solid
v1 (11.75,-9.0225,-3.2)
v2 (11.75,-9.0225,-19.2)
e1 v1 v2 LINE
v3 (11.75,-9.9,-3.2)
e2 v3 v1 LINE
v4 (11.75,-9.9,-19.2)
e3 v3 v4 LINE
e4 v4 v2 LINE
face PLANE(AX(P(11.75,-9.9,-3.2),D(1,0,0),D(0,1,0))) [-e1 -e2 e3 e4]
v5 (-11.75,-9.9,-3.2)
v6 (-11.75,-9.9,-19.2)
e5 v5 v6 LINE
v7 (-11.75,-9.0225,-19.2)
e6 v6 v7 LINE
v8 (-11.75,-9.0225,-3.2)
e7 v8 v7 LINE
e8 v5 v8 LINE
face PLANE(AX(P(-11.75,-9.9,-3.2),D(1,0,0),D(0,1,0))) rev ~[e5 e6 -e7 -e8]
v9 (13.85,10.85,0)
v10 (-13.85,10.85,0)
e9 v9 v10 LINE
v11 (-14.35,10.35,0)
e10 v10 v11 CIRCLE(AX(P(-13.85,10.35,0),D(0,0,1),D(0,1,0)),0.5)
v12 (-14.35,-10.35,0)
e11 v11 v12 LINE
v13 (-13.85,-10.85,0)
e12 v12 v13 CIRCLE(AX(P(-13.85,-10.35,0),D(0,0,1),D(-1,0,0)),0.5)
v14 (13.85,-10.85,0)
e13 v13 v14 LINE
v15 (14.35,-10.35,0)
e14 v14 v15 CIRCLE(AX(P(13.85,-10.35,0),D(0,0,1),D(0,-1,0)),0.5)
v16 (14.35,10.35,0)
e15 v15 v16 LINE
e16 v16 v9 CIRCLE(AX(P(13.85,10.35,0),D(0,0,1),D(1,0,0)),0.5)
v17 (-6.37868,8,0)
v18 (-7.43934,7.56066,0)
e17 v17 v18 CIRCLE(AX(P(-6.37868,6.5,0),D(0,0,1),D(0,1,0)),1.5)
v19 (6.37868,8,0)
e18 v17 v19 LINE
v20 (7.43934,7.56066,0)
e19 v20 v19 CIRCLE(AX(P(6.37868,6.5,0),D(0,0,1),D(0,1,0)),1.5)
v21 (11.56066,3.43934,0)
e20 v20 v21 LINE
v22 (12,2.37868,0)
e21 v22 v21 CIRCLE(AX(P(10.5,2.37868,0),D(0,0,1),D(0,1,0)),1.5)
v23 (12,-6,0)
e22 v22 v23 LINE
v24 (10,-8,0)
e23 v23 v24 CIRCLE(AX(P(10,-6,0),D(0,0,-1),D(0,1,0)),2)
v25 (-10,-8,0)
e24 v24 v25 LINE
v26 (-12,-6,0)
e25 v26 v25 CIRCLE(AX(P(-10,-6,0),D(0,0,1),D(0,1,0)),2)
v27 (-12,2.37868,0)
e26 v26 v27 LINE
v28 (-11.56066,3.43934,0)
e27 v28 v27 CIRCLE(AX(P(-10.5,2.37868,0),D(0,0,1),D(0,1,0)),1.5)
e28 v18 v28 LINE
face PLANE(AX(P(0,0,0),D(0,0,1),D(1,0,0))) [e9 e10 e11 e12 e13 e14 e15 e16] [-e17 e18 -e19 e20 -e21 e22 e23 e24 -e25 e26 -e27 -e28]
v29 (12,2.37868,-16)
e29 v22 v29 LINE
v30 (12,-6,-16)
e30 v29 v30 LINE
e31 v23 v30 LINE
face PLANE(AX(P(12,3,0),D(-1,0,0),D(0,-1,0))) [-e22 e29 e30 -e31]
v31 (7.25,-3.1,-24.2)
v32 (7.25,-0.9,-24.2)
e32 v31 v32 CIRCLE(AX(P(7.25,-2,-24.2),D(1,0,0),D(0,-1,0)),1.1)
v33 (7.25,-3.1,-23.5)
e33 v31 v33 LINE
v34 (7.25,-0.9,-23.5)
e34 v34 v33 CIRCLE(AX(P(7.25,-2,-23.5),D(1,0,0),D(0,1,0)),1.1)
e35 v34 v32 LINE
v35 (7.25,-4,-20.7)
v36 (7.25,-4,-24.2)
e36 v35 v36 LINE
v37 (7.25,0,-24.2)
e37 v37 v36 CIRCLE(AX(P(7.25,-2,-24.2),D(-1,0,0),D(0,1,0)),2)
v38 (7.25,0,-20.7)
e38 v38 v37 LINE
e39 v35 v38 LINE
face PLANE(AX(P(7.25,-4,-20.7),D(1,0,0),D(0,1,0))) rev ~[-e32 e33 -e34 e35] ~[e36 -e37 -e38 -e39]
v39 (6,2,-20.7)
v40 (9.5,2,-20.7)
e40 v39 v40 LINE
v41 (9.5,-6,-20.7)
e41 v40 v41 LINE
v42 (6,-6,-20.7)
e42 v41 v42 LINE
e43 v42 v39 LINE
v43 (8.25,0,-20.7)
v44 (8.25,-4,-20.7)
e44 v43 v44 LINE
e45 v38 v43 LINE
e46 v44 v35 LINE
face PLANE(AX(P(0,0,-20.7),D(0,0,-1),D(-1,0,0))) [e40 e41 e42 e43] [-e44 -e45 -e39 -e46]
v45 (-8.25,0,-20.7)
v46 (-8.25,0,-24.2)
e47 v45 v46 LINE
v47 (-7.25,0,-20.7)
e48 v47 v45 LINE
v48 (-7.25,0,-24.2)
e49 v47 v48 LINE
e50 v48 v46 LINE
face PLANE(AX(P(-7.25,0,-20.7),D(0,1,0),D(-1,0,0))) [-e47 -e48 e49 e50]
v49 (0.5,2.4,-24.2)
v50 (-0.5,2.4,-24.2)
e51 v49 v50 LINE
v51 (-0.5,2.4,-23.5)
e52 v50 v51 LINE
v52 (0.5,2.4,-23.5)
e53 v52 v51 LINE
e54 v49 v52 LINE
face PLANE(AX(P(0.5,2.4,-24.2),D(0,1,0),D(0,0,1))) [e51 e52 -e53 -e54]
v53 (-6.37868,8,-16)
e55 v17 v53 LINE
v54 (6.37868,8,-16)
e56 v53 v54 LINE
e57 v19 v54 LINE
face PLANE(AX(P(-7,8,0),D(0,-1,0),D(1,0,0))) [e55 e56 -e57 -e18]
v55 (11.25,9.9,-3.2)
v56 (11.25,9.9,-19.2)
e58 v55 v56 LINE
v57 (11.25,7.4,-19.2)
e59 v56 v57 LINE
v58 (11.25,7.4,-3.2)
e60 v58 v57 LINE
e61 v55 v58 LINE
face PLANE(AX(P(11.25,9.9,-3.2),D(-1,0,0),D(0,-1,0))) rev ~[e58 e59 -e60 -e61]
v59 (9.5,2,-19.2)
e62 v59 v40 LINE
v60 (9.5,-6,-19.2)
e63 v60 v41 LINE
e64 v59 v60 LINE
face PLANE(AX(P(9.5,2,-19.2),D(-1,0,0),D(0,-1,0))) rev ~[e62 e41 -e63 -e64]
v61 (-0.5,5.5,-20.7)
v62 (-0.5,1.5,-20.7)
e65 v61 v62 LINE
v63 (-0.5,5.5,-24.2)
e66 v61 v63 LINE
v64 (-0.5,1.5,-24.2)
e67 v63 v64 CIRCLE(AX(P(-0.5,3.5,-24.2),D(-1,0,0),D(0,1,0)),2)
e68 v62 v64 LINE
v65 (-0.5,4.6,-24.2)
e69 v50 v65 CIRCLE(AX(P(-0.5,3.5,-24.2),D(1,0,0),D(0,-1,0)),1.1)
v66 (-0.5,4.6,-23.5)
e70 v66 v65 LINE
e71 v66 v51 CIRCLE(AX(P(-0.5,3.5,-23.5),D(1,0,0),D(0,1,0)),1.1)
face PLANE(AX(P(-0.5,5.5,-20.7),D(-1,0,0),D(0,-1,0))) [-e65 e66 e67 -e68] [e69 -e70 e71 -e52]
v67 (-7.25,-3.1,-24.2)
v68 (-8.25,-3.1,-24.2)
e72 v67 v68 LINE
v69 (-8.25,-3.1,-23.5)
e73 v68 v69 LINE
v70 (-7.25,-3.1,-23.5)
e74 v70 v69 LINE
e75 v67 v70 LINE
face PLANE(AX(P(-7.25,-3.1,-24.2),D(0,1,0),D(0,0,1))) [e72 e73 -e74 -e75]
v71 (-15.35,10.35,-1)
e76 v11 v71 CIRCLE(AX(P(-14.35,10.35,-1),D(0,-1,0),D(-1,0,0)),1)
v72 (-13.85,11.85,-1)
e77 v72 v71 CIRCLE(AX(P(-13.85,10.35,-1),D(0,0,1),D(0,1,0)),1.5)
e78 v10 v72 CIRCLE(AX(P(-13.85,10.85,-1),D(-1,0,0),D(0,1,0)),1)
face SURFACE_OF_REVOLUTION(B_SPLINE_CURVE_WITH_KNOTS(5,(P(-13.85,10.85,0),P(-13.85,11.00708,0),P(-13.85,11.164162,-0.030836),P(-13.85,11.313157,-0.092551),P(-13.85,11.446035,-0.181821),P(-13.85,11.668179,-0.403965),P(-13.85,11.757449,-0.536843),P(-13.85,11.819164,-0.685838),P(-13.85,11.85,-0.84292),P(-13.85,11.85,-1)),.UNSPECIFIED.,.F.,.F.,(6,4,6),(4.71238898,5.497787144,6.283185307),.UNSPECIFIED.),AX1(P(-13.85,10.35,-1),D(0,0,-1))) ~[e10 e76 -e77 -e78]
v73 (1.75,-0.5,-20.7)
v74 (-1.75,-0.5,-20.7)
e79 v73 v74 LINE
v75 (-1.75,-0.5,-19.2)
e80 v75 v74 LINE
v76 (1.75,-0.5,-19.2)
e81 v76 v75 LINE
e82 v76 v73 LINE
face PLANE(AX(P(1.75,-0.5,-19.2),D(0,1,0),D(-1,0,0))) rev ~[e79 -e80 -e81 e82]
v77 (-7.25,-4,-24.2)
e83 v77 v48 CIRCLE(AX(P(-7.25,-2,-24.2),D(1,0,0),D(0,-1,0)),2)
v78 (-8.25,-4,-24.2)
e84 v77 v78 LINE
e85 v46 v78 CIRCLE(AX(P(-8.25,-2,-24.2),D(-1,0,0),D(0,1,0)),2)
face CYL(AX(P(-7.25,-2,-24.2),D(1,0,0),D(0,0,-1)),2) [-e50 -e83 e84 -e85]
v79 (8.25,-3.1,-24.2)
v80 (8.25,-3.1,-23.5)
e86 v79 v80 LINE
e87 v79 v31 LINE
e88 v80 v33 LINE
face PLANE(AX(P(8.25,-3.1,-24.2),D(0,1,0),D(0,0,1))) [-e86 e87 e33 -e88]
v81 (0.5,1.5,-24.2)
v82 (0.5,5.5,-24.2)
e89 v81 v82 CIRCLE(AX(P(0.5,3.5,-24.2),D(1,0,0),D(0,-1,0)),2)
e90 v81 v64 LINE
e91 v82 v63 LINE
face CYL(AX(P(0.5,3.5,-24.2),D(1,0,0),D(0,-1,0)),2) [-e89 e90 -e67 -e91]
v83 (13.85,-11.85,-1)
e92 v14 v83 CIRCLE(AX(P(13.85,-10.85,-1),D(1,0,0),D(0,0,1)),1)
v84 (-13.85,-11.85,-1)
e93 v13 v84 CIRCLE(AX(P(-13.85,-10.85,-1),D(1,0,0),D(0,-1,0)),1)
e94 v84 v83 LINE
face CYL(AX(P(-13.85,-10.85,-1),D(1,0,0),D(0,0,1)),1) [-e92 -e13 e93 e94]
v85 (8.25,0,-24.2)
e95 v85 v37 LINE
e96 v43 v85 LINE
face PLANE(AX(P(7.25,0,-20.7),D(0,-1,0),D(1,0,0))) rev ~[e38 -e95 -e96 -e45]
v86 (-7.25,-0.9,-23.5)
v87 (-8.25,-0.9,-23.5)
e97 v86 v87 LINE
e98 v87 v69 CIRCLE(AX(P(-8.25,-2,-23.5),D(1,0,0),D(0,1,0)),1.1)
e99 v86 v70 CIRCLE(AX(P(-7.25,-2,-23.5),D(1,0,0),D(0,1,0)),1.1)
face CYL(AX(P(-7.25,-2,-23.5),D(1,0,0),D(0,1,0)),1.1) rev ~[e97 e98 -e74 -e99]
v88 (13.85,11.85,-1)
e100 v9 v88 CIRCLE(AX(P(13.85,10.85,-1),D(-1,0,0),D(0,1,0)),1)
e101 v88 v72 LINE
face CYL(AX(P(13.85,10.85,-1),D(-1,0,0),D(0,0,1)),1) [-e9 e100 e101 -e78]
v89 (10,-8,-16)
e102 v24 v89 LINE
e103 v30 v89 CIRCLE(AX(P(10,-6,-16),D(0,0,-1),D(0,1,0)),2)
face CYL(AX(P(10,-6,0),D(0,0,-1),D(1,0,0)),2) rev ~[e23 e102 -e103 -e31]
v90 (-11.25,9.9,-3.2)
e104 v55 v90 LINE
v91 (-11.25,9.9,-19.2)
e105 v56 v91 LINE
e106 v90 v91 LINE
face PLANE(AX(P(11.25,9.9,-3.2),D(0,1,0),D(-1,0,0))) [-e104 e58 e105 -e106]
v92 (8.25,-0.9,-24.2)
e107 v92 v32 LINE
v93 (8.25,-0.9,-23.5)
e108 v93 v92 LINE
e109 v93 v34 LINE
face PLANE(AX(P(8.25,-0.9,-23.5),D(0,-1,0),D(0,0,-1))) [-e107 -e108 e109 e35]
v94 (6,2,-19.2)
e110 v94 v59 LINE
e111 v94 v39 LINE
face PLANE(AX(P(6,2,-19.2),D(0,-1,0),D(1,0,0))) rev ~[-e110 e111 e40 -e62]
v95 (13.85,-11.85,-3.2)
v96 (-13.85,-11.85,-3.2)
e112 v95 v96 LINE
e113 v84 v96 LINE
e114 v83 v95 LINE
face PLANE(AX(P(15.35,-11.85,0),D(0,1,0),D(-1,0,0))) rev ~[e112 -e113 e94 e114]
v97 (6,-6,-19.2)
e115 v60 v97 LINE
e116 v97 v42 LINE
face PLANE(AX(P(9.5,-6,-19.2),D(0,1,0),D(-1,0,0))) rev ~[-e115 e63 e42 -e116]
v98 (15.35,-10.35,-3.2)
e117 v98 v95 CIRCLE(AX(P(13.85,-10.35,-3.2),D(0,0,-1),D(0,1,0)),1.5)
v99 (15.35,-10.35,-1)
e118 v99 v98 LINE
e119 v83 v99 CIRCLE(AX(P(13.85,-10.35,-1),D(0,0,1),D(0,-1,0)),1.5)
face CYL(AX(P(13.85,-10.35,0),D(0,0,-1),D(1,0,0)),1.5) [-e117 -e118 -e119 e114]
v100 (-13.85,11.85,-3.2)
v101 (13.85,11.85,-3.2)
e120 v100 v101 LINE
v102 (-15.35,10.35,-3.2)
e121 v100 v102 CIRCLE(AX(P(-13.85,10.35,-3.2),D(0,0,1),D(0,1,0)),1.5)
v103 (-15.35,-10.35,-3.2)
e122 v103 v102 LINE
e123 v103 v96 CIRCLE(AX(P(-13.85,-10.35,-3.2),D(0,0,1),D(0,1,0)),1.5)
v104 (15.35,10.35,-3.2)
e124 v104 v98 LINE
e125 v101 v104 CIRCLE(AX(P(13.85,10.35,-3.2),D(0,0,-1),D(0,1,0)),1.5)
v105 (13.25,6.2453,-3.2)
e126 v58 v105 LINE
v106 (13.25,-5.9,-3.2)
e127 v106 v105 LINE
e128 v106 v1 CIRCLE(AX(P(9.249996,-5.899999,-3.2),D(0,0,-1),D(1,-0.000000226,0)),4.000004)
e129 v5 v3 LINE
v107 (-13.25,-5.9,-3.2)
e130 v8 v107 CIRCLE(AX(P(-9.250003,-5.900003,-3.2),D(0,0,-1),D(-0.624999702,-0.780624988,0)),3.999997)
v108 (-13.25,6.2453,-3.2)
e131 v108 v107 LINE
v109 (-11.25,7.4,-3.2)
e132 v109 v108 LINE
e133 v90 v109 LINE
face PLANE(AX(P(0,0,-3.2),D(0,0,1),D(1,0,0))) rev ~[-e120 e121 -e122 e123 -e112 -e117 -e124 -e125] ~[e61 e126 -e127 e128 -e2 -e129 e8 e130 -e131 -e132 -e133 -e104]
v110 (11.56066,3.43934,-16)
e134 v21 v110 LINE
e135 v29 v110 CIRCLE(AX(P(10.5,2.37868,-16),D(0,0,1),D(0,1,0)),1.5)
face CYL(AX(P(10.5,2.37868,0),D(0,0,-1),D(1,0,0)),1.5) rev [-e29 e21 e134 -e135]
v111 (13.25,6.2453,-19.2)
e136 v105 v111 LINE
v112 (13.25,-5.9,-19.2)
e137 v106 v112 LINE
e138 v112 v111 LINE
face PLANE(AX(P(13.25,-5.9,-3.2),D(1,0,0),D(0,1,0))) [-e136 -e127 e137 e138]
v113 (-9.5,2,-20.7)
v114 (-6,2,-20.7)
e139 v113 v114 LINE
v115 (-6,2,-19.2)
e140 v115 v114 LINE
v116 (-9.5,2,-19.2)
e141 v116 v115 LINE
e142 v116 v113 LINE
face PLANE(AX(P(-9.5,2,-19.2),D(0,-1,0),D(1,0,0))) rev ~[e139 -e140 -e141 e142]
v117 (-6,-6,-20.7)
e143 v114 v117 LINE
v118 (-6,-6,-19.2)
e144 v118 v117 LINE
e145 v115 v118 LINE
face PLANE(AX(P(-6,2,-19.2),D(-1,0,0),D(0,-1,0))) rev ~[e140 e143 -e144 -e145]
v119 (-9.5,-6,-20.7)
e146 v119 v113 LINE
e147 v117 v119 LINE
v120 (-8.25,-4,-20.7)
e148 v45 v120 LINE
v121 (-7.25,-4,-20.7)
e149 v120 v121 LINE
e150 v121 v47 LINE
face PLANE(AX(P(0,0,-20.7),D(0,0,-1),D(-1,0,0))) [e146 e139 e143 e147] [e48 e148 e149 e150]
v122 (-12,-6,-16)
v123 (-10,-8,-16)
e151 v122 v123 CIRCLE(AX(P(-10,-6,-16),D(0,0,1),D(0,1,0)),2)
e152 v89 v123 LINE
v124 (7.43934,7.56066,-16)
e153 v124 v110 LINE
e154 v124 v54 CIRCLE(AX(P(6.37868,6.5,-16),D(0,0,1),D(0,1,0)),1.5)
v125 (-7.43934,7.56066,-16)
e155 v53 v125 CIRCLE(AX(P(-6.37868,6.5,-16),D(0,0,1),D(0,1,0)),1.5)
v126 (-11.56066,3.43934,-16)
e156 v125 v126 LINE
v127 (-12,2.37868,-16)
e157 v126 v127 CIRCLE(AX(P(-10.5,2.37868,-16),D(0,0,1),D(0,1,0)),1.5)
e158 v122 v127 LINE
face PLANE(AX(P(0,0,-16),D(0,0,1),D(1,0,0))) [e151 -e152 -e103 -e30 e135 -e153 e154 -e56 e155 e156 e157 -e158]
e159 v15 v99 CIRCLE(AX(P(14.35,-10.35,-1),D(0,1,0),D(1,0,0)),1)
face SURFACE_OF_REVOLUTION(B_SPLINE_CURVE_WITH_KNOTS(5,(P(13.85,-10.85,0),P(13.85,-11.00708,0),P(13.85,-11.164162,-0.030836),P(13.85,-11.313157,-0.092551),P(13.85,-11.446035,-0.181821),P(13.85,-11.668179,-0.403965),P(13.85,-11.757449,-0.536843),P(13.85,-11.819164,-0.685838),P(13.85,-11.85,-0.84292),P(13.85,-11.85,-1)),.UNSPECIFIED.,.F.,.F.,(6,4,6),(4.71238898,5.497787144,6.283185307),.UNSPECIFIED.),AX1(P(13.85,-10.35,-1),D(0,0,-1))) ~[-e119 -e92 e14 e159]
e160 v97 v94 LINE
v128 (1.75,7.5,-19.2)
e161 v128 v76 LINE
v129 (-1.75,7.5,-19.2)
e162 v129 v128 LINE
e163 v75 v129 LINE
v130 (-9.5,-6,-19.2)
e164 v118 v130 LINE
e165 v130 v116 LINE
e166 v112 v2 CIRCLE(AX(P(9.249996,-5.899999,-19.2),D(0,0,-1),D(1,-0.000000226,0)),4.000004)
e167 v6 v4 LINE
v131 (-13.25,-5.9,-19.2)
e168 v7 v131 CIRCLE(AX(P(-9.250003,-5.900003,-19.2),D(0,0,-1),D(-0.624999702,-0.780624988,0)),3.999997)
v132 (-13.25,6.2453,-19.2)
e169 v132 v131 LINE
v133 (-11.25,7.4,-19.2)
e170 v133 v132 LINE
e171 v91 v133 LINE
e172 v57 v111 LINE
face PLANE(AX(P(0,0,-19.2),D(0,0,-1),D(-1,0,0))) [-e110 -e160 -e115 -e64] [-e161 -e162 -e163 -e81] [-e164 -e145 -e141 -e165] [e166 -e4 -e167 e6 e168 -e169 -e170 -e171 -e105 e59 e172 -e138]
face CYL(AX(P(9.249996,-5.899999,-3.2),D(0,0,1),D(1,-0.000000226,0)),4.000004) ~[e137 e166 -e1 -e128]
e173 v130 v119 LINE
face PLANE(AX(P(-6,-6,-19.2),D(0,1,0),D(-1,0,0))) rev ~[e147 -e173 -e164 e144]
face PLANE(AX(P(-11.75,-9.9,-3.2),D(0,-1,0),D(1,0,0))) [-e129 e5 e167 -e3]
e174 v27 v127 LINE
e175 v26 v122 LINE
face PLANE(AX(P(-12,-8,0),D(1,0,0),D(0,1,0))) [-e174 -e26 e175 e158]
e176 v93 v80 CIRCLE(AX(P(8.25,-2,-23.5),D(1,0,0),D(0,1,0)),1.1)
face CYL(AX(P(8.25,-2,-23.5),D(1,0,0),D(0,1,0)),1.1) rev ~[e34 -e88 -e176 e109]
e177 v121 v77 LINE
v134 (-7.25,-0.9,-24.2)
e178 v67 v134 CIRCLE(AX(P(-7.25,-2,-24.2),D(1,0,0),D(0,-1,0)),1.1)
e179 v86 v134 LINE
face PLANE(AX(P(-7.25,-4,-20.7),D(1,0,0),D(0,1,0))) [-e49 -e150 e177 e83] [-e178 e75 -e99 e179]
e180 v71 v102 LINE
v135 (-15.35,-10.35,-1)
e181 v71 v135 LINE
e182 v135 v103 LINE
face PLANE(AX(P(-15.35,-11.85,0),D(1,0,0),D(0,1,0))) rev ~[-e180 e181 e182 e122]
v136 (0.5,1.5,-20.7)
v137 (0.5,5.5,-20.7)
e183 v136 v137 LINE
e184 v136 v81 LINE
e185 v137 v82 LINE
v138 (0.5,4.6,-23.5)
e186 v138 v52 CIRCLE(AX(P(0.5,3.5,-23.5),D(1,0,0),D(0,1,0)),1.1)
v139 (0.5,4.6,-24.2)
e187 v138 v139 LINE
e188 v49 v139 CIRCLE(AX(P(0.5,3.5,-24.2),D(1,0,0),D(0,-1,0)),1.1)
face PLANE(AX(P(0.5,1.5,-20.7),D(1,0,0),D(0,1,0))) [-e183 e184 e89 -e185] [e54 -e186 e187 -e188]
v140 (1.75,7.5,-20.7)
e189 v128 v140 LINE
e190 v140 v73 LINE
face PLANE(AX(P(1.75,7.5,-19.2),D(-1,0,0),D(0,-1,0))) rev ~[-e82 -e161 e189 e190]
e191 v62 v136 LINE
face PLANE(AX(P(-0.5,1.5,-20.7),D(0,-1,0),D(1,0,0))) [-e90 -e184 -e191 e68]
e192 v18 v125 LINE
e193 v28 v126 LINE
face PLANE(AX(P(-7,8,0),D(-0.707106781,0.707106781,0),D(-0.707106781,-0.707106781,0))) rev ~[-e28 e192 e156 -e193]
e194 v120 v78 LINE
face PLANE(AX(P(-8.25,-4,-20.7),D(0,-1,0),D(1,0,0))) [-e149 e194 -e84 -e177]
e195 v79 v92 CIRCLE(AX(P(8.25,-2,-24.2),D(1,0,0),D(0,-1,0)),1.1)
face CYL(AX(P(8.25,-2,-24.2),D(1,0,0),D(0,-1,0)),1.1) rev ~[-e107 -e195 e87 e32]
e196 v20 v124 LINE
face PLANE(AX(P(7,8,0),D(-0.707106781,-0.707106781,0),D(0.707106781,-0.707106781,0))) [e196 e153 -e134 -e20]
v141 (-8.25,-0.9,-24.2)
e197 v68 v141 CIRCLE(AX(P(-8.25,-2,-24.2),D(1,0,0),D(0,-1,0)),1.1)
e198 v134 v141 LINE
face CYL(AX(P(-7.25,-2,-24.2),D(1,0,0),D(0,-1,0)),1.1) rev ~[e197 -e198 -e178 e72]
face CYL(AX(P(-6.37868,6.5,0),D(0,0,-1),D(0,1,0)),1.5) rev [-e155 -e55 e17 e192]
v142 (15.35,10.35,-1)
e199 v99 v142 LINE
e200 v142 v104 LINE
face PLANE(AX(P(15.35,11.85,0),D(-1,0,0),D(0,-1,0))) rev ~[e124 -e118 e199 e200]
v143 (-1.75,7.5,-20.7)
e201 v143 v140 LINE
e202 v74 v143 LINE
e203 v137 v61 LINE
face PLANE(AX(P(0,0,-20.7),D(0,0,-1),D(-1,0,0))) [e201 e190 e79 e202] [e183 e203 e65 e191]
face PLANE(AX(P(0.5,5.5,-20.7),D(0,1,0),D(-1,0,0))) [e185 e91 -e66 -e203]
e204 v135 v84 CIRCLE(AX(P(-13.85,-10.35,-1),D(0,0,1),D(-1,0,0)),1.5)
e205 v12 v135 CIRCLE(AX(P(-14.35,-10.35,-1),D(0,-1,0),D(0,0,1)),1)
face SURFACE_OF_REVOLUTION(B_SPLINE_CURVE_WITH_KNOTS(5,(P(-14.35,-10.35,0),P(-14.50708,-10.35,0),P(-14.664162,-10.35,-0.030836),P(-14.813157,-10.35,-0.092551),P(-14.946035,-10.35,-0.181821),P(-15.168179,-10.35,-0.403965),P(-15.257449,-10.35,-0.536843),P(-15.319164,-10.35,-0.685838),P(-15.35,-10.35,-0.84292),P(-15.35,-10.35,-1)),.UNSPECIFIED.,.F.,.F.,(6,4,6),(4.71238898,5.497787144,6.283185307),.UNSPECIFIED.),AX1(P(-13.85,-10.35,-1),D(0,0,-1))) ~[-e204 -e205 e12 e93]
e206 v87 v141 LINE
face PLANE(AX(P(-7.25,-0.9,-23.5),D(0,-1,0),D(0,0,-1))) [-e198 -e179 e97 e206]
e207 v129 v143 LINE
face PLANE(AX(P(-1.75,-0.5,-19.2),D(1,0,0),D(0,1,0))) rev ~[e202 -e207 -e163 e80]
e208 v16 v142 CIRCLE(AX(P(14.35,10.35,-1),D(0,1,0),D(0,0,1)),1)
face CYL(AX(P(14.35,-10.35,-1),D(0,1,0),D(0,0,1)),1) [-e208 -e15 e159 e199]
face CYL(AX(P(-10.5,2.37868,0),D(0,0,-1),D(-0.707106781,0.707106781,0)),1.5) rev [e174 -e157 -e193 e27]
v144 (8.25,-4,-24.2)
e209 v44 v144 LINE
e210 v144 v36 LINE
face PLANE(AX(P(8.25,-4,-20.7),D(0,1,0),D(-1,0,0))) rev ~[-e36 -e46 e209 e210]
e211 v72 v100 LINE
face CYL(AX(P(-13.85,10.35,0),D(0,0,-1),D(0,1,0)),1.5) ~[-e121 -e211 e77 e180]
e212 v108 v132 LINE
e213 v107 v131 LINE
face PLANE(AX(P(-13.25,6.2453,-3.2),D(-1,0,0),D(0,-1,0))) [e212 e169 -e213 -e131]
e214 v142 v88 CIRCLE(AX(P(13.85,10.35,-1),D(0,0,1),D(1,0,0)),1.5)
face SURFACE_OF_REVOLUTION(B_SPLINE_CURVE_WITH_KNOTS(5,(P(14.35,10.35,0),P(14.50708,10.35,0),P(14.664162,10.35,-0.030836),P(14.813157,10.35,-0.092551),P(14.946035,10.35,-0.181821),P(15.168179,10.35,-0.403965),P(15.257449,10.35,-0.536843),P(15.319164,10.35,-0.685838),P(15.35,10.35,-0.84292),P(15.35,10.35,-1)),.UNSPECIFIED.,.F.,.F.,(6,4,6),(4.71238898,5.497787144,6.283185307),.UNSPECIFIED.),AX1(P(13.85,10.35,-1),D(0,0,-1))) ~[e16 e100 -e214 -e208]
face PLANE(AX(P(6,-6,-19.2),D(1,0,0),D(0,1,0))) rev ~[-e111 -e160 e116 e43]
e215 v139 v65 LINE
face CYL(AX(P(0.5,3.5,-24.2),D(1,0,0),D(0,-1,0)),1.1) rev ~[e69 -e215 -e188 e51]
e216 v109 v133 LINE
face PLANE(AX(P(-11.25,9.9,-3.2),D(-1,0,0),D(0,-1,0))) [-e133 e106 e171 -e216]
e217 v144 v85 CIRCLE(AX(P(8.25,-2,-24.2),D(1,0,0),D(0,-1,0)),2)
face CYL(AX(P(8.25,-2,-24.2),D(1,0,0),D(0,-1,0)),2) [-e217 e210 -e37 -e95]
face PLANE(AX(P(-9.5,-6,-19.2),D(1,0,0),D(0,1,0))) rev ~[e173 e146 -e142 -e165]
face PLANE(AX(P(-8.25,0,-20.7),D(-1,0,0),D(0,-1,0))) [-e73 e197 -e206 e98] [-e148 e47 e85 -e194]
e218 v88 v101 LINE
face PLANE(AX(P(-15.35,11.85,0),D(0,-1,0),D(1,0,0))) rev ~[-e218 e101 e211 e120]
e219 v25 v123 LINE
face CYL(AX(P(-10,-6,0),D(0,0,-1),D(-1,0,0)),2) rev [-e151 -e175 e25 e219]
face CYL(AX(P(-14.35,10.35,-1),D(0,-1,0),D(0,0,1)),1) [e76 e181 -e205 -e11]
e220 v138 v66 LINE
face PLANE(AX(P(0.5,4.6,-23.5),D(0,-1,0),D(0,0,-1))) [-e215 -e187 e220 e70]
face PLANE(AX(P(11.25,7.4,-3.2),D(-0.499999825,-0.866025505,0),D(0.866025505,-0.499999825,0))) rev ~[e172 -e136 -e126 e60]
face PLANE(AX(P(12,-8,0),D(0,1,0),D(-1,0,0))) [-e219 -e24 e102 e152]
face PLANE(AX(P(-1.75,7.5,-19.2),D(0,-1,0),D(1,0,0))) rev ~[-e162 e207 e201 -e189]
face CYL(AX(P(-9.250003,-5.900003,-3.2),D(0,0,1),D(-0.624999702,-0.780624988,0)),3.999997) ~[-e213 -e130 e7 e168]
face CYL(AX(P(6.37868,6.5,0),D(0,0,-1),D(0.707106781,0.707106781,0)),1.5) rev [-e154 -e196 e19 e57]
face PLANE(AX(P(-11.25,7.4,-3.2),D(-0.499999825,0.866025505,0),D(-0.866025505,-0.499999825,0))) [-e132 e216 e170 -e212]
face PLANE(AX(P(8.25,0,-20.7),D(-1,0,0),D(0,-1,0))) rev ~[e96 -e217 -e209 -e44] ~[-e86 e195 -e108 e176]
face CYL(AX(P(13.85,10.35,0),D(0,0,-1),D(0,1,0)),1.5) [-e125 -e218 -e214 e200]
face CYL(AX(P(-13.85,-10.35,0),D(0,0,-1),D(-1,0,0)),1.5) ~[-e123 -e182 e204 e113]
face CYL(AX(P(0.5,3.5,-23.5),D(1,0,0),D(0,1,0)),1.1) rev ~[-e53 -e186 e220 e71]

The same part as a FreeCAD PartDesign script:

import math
import FreeCAD as App
import Part
import Sketcher

V = App.Vector
Q = App.Units.Quantity


def edges_at(feature, points):
    """Names of the edges that pass closest to the given points."""
    edges = feature.Shape.Edges
    near = lambda p: min(range(len(edges)), key=lambda i: edges[i].distToShape(Part.Vertex(*p))[0])
    return sorted({f"Edge{near(p) + 1}" for p in points})


def add_polygon(sketch, points):
    """Adds a closed chain of lines whose ends are joined by coincident constraints."""
    first, n = sketch.GeometryCount, len(points)
    for a, b in zip(points, points[1:] + points[:1]):
        sketch.addGeometry(Part.LineSegment(App.Vector(*a, 0), App.Vector(*b, 0)), False)
    for i in range(n):
        sketch.addConstraint(Sketcher.Constraint("Coincident", first + i, 2, first + (i + 1) % n, 1))

doc = App.newDocument("Part")
body = doc.addObject("PartDesign::Body", "Body")

sketch1 = body.newObject("Sketcher::SketchObject", "Sketch")
sketch1.AttachmentSupport = (doc.getObject("XY_Plane"), [""])
sketch1.MapMode = "FlatFace"
add_polygon(sketch1, [(15.35, 11.85), (-15.35, 11.85), (-15.35, -11.85), (15.35, -11.85)])
sketch1.addConstraint(Sketcher.Constraint("Horizontal", 0))
sketch1.addConstraint(Sketcher.Constraint("Vertical", 1))
sketch1.addConstraint(Sketcher.Constraint("Horizontal", 2))
sketch1.addConstraint(Sketcher.Constraint("Vertical", 3))
sketch1.addConstraint(Sketcher.Constraint("Symmetric", 0, 2, 2, 2, -1, 1))
sketch1.addConstraint(Sketcher.Constraint("DistanceX", 0, 2, 0, 1, 30.7))
sketch1.addConstraint(Sketcher.Constraint("DistanceY", 1, 2, 1, 1, 23.7))
pad1 = body.newObject("PartDesign::Pad", "Pad")
pad1.Profile = sketch1
pad1.Length = 3.2
pad1.Reversed = True

sketch2 = body.newObject("Sketcher::SketchObject", "Sketch001")
sketch2.AttachmentSupport = (doc.getObject("XY_Plane"), [""])
sketch2.MapMode = "FlatFace"
sketch2.AttachmentOffset = App.Placement(V(0, 0, -3.2), App.Rotation())
sketch2.addGeometry(Part.LineSegment(V(-11.25, 9.9, 0), V(11.25, 9.9, 0)), False)
sketch2.addGeometry(Part.LineSegment(V(11.25, 9.9, 0), V(11.25, 7.4, 0)), False)
sketch2.addGeometry(Part.LineSegment(V(11.25, 7.4, 0), V(13.25, 6.2453, 0)), False)
sketch2.addGeometry(Part.LineSegment(V(13.25, 6.2453, 0), V(13.25, -5.9, 0)), False)
sketch2.addGeometry(Part.ArcOfCircle(Part.Circle(V(9.25, -5.9, 0), V(0, 0, 1), 4), math.radians(-51.317822), math.radians(0)), False)
sketch2.addGeometry(Part.LineSegment(V(11.75, -9.0225, 0), V(11.75, -9.9, 0)), False)
sketch2.addGeometry(Part.LineSegment(V(11.75, -9.9, 0), V(-11.75, -9.9, 0)), False)
sketch2.addGeometry(Part.LineSegment(V(-11.75, -9.9, 0), V(-11.75, -9.0225, 0)), False)
sketch2.addGeometry(Part.ArcOfCircle(Part.Circle(V(-9.25, -5.9, 0), V(0, 0, 1), 4.000001), math.radians(180), math.radians(231.317822)), False)
sketch2.addGeometry(Part.LineSegment(V(-13.25, -5.9, 0), V(-13.25, 6.2453, 0)), False)
sketch2.addGeometry(Part.LineSegment(V(-13.25, 6.2453, 0), V(-11.25, 7.4, 0)), False)
sketch2.addGeometry(Part.LineSegment(V(-11.25, 7.4, 0), V(-11.25, 9.9, 0)), False)
sketch2.addConstraint(Sketcher.Constraint("Coincident", 0, 2, 1, 1))
sketch2.addConstraint(Sketcher.Constraint("Coincident", 1, 2, 2, 1))
sketch2.addConstraint(Sketcher.Constraint("Coincident", 2, 2, 3, 1))
sketch2.addConstraint(Sketcher.Constraint("Tangent", 3, 2, 4, 2))
sketch2.addConstraint(Sketcher.Constraint("Coincident", 4, 1, 5, 1))
sketch2.addConstraint(Sketcher.Constraint("Coincident", 5, 2, 6, 1))
sketch2.addConstraint(Sketcher.Constraint("Coincident", 6, 2, 7, 1))
sketch2.addConstraint(Sketcher.Constraint("Coincident", 7, 2, 8, 2))
sketch2.addConstraint(Sketcher.Constraint("Tangent", 8, 1, 9, 1))
sketch2.addConstraint(Sketcher.Constraint("Coincident", 9, 2, 10, 1))
sketch2.addConstraint(Sketcher.Constraint("Coincident", 10, 2, 11, 1))
sketch2.addConstraint(Sketcher.Constraint("Coincident", 11, 2, 0, 1))
sketch2.addConstraint(Sketcher.Constraint("Horizontal", 0))
sketch2.addConstraint(Sketcher.Constraint("Vertical", 1))
sketch2.addConstraint(Sketcher.Constraint("Vertical", 3))
sketch2.addConstraint(Sketcher.Constraint("Vertical", 5))
sketch2.addConstraint(Sketcher.Constraint("Horizontal", 6))
sketch2.addConstraint(Sketcher.Constraint("Vertical", 7))
sketch2.addConstraint(Sketcher.Constraint("Vertical", 9))
sketch2.addConstraint(Sketcher.Constraint("Vertical", 11))
sketch2.addConstraint(Sketcher.Constraint("Equal", 4, 8))
sketch2.addConstraint(Sketcher.Constraint("Symmetric", 4, 3, 8, 3, -2))
sketch2.addConstraint(Sketcher.Constraint("Symmetric", 1, 2, 10, 2, -2))
sketch2.addConstraint(Sketcher.Constraint("Horizontal", 4, 1, 7, 2))
sketch2.addConstraint(Sketcher.Constraint("Horizontal", 2, 2, 9, 2))
sketch2.addConstraint(Sketcher.Constraint("Radius", 4, 4.0))
sketch2.addConstraint(Sketcher.Constraint("DistanceY", 1, 2, 1, 1, 2.5))
sketch2.addConstraint(Sketcher.Constraint("DistanceX", 4, 3, 0, 2, 2.0))
sketch2.addConstraint(Sketcher.Constraint("DistanceY", -1, 1, 0, 2, 9.9))
sketch2.addConstraint(Sketcher.Constraint("DistanceY", 5, 2, -1, 1, 9.9))
sketch2.addConstraint(Sketcher.Constraint("DistanceX", 4, 1, 3, 2, 1.5))
sketch2.addConstraint(Sketcher.Constraint("DistanceX", -1, 1, 2, 2, 13.25))
sketch2.addConstraint(Sketcher.Constraint("Angle", 2, Q("-30 deg")))
sketch2.addConstraint(Sketcher.Constraint("DistanceY", 5, 2, 3, 2, 4.0))
pad2 = body.newObject("PartDesign::Pad", "Pad001")
pad2.Profile = sketch2
pad2.Length = 16
pad2.Reversed = True

sketch3 = body.newObject("Sketcher::SketchObject", "Sketch002")
sketch3.AttachmentSupport = (doc.getObject("XY_Plane"), [""])
sketch3.MapMode = "FlatFace"
sketch3.AttachmentOffset = App.Placement(V(0, 0, -19.2), App.Rotation())
add_polygon(sketch3, [(-1.75, 7.5), (1.75, 7.5), (1.75, -0.5), (-1.75, -0.5)])
add_polygon(sketch3, [(6, 2), (9.5, 2), (9.5, -6), (6, -6)])
add_polygon(sketch3, [(-9.5, 2), (-6, 2), (-6, -6), (-9.5, -6)])
sketch3.addConstraint(Sketcher.Constraint("Horizontal", 0))
sketch3.addConstraint(Sketcher.Constraint("Vertical", 1))
sketch3.addConstraint(Sketcher.Constraint("Horizontal", 2))
sketch3.addConstraint(Sketcher.Constraint("Vertical", 3))
sketch3.addConstraint(Sketcher.Constraint("Horizontal", 4))
sketch3.addConstraint(Sketcher.Constraint("Vertical", 5))
sketch3.addConstraint(Sketcher.Constraint("Horizontal", 6))
sketch3.addConstraint(Sketcher.Constraint("Vertical", 7))
sketch3.addConstraint(Sketcher.Constraint("Horizontal", 8))
sketch3.addConstraint(Sketcher.Constraint("Vertical", 9))
sketch3.addConstraint(Sketcher.Constraint("Horizontal", 10))
sketch3.addConstraint(Sketcher.Constraint("Vertical", 11))
sketch3.addConstraint(Sketcher.Constraint("Symmetric", 7, 2, 8, 2, -2))
sketch3.addConstraint(Sketcher.Constraint("Symmetric", 5, 2, 10, 2, -2))
sketch3.addConstraint(Sketcher.Constraint("Equal", 2, 4))
sketch3.addConstraint(Sketcher.Constraint("Equal", 3, 5))
sketch3.addConstraint(Sketcher.Constraint("DistanceY", 1, 2, 1, 1, 8.0))
sketch3.addConstraint(Sketcher.Constraint("DistanceX", 0, 1, 0, 2, 3.5))
sketch3.addConstraint(Sketcher.Constraint("DistanceY", -1, 1, 4, 2, 2.0))
sketch3.addConstraint(Sketcher.Constraint("DistanceX", -1, 1, 6, 2, 6.0))
sketch3.addConstraint(Sketcher.Constraint("DistanceY", -1, 1, 0, 2, 7.5))
sketch3.addConstraint(Sketcher.Constraint("DistanceX", -1, 1, 0, 2, 1.75))
pad3 = body.newObject("PartDesign::Pad", "Pad002")
pad3.Profile = sketch3
pad3.Length = 1.5
pad3.Reversed = True

sketch4 = body.newObject("Sketcher::SketchObject", "Sketch003")
sketch4.AttachmentSupport = (doc.getObject("XY_Plane"), [""])
sketch4.MapMode = "FlatFace"
sketch4.AttachmentOffset = App.Placement(V(0, 0, -20.7), App.Rotation())
add_polygon(sketch4, [(7.25, 0), (8.25, 0), (8.25, -4), (7.25, -4)])
sketch4.addConstraint(Sketcher.Constraint("Horizontal", 0))
sketch4.addConstraint(Sketcher.Constraint("Vertical", 1))
sketch4.addConstraint(Sketcher.Constraint("Horizontal", 2))
sketch4.addConstraint(Sketcher.Constraint("Vertical", 3))
sketch4.addConstraint(Sketcher.Constraint("PointOnObject", 0, 2, -1))
sketch4.addConstraint(Sketcher.Constraint("DistanceX", 0, 1, 0, 2, 1.0))
sketch4.addConstraint(Sketcher.Constraint("DistanceY", 1, 2, 1, 1, 4.0))
sketch4.addConstraint(Sketcher.Constraint("DistanceX", -1, 1, 0, 2, 8.25))
pad4 = body.newObject("PartDesign::Pad", "Pad003")
pad4.Profile = sketch4
pad4.Length = 5.5
pad4.Reversed = True

sketch5 = body.newObject("Sketcher::SketchObject", "Sketch004")
sketch5.AttachmentSupport = (doc.getObject("XY_Plane"), [""])
sketch5.MapMode = "FlatFace"
sketch5.AttachmentOffset = App.Placement(V(0, 0, -20.7), App.Rotation())
add_polygon(sketch5, [(-0.5, 5.5), (0.5, 5.5), (0.5, 1.5), (-0.5, 1.5)])
sketch5.addConstraint(Sketcher.Constraint("Horizontal", 0))
sketch5.addConstraint(Sketcher.Constraint("Vertical", 1))
sketch5.addConstraint(Sketcher.Constraint("Horizontal", 2))
sketch5.addConstraint(Sketcher.Constraint("Vertical", 3))
sketch5.addConstraint(Sketcher.Constraint("DistanceX", 0, 1, 0, 2, 1.0))
sketch5.addConstraint(Sketcher.Constraint("DistanceY", 1, 2, 1, 1, 4.0))
sketch5.addConstraint(Sketcher.Constraint("DistanceX", -1, 1, 0, 2, 0.5))
sketch5.addConstraint(Sketcher.Constraint("DistanceY", -1, 1, 0, 2, 5.5))
pad5 = body.newObject("PartDesign::Pad", "Pad004")
pad5.Profile = sketch5
pad5.Length = 5.5
pad5.Reversed = True

sketch6 = body.newObject("Sketcher::SketchObject", "Sketch005")
sketch6.AttachmentSupport = (doc.getObject("XY_Plane"), [""])
sketch6.MapMode = "FlatFace"
sketch6.AttachmentOffset = App.Placement(V(0, 0, -20.7), App.Rotation())
add_polygon(sketch6, [(-7.25, -4), (-8.25, -4), (-8.25, 0), (-7.25, 0)])
sketch6.addConstraint(Sketcher.Constraint("Horizontal", 0))
sketch6.addConstraint(Sketcher.Constraint("Vertical", 1))
sketch6.addConstraint(Sketcher.Constraint("Horizontal", 2))
sketch6.addConstraint(Sketcher.Constraint("Vertical", 3))
sketch6.addConstraint(Sketcher.Constraint("PointOnObject", 1, 2, -1))
sketch6.addConstraint(Sketcher.Constraint("DistanceX", 0, 2, 0, 1, 1.0))
sketch6.addConstraint(Sketcher.Constraint("DistanceY", 1, 1, 1, 2, 4.0))
sketch6.addConstraint(Sketcher.Constraint("DistanceX", 0, 2, -1, 1, 8.25))
pad6 = body.newObject("PartDesign::Pad", "Pad005")
pad6.Profile = sketch6
pad6.Length = 5.5
pad6.Reversed = True

sketch7 = body.newObject("Sketcher::SketchObject", "Sketch006")
sketch7.AttachmentSupport = (doc.getObject("YZ_Plane"), [""])
sketch7.MapMode = "FlatFace"
sketch7.AttachmentOffset = App.Placement(V(0, 0, 8.25), App.Rotation())
sketch7.addGeometry(Part.ArcOfCircle(Part.Circle(V(-2, -24.2, 0), V(0, 0, 1), 2), math.radians(180), math.radians(270)), False)
sketch7.addGeometry(Part.LineSegment(V(-4, -24.2, 0), V(-4, -26.2, 0)), False)
sketch7.addGeometry(Part.LineSegment(V(-4, -26.2, 0), V(-2, -26.2, 0)), False)
sketch7.addGeometry(Part.LineSegment(V(0, -26.2, 0), V(0, -24.2, 0)), False)
sketch7.addGeometry(Part.ArcOfCircle(Part.Circle(V(-2, -24.2, 0), V(0, 0, 1), 2), math.radians(-90), math.radians(0)), False)
sketch7.addGeometry(Part.LineSegment(V(-2, -26.2, 0), V(0, -26.2, 0)), False)
sketch7.addGeometry(Part.LineSegment(V(-3.1, -23.5, 0), V(-3.1, -24.2, 0)), False)
sketch7.addGeometry(Part.ArcOfCircle(Part.Circle(V(-2, -24.2, 0), V(0, 0, 1), 1.1), math.radians(180), math.radians(360)), False)
sketch7.addGeometry(Part.LineSegment(V(-0.9, -24.2, 0), V(-0.9, -23.5, 0)), False)
sketch7.addGeometry(Part.ArcOfCircle(Part.Circle(V(-2, -23.5, 0), V(0, 0, 1), 1.1), math.radians(0), math.radians(180)), False)
sketch7.addConstraint(Sketcher.Constraint("Tangent", 0, 1, 1, 1))
sketch7.addConstraint(Sketcher.Constraint("Coincident", 1, 2, 2, 1))
sketch7.addConstraint(Sketcher.Constraint("Tangent", 2, 2, 0, 2))
sketch7.addConstraint(Sketcher.Constraint("Tangent", 3, 2, 4, 2))
sketch7.addConstraint(Sketcher.Constraint("Tangent", 4, 1, 5, 1))
sketch7.addConstraint(Sketcher.Constraint("Coincident", 5, 2, 3, 1))
sketch7.addConstraint(Sketcher.Constraint("Tangent", 6, 2, 7, 1))
sketch7.addConstraint(Sketcher.Constraint("Tangent", 7, 2, 8, 1))
sketch7.addConstraint(Sketcher.Constraint("Tangent", 8, 2, 9, 1))
sketch7.addConstraint(Sketcher.Constraint("Tangent", 9, 2, 6, 1))
sketch7.addConstraint(Sketcher.Constraint("Vertical", 1))
sketch7.addConstraint(Sketcher.Constraint("Horizontal", 2))
sketch7.addConstraint(Sketcher.Constraint("Vertical", 3))
sketch7.addConstraint(Sketcher.Constraint("Horizontal", 5))
sketch7.addConstraint(Sketcher.Constraint("Vertical", 6))
sketch7.addConstraint(Sketcher.Constraint("Vertical", 8))
sketch7.addConstraint(Sketcher.Constraint("Coincident", 4, 3, 0, 3))
sketch7.addConstraint(Sketcher.Constraint("Coincident", 7, 3, 0, 3))
sketch7.addConstraint(Sketcher.Constraint("Equal", 0, 4))
sketch7.addConstraint(Sketcher.Constraint("PointOnObject", 3, 2, -2))
sketch7.addConstraint(Sketcher.Constraint("Radius", 0, 2.0))
sketch7.addConstraint(Sketcher.Constraint("Radius", 7, 1.1))
sketch7.addConstraint(Sketcher.Constraint("DistanceY", 6, 2, 6, 1, 0.7))
sketch7.addConstraint(Sketcher.Constraint("DistanceY", 0, 3, -1, 1, 24.2))
pocket1 = body.newObject("PartDesign::Pocket", "Pocket")
pocket1.Profile = sketch7
pocket1.Length = 1

sketch8 = body.newObject("Sketcher::SketchObject", "Sketch007")
sketch8.AttachmentSupport = (doc.getObject("YZ_Plane"), [""])
sketch8.MapMode = "FlatFace"
sketch8.AttachmentOffset = App.Placement(V(0, 0, 0.5), App.Rotation())
sketch8.addGeometry(Part.ArcOfCircle(Part.Circle(V(3.5, -24.2, 0), V(0, 0, 1), 2), math.radians(180), math.radians(270)), False)
sketch8.addGeometry(Part.LineSegment(V(1.5, -24.2, 0), V(1.5, -26.2, 0)), False)
sketch8.addGeometry(Part.LineSegment(V(1.5, -26.2, 0), V(3.5, -26.2, 0)), False)
sketch8.addGeometry(Part.LineSegment(V(5.5, -26.2, 0), V(5.5, -24.2, 0)), False)
sketch8.addGeometry(Part.ArcOfCircle(Part.Circle(V(3.5, -24.2, 0), V(0, 0, 1), 2), math.radians(-90), math.radians(0)), False)
sketch8.addGeometry(Part.LineSegment(V(3.5, -26.2, 0), V(5.5, -26.2, 0)), False)
sketch8.addGeometry(Part.LineSegment(V(2.4, -23.5, 0), V(2.4, -24.2, 0)), False)
sketch8.addGeometry(Part.ArcOfCircle(Part.Circle(V(3.5, -24.2, 0), V(0, 0, 1), 1.1), math.radians(180), math.radians(360)), False)
sketch8.addGeometry(Part.LineSegment(V(4.6, -24.2, 0), V(4.6, -23.5, 0)), False)
sketch8.addGeometry(Part.ArcOfCircle(Part.Circle(V(3.5, -23.5, 0), V(0, 0, 1), 1.1), math.radians(0), math.radians(180)), False)
sketch8.addConstraint(Sketcher.Constraint("Tangent", 0, 1, 1, 1))
sketch8.addConstraint(Sketcher.Constraint("Coincident", 1, 2, 2, 1))
sketch8.addConstraint(Sketcher.Constraint("Tangent", 2, 2, 0, 2))
sketch8.addConstraint(Sketcher.Constraint("Tangent", 3, 2, 4, 2))
sketch8.addConstraint(Sketcher.Constraint("Tangent", 4, 1, 5, 1))
sketch8.addConstraint(Sketcher.Constraint("Coincident", 5, 2, 3, 1))
sketch8.addConstraint(Sketcher.Constraint("Tangent", 6, 2, 7, 1))
sketch8.addConstraint(Sketcher.Constraint("Tangent", 7, 2, 8, 1))
sketch8.addConstraint(Sketcher.Constraint("Tangent", 8, 2, 9, 1))
sketch8.addConstraint(Sketcher.Constraint("Tangent", 9, 2, 6, 1))
sketch8.addConstraint(Sketcher.Constraint("Vertical", 1))
sketch8.addConstraint(Sketcher.Constraint("Horizontal", 2))
sketch8.addConstraint(Sketcher.Constraint("Vertical", 3))
sketch8.addConstraint(Sketcher.Constraint("Horizontal", 5))
sketch8.addConstraint(Sketcher.Constraint("Vertical", 6))
sketch8.addConstraint(Sketcher.Constraint("Vertical", 8))
sketch8.addConstraint(Sketcher.Constraint("Coincident", 4, 3, 0, 3))
sketch8.addConstraint(Sketcher.Constraint("Coincident", 7, 3, 0, 3))
sketch8.addConstraint(Sketcher.Constraint("Equal", 0, 4))
sketch8.addConstraint(Sketcher.Constraint("Radius", 0, 2.0))
sketch8.addConstraint(Sketcher.Constraint("Radius", 7, 1.1))
sketch8.addConstraint(Sketcher.Constraint("DistanceY", 6, 2, 6, 1, 0.7))
sketch8.addConstraint(Sketcher.Constraint("DistanceX", -1, 1, 0, 3, 3.5))
sketch8.addConstraint(Sketcher.Constraint("DistanceY", 0, 3, -1, 1, 24.2))
pocket2 = body.newObject("PartDesign::Pocket", "Pocket001")
pocket2.Profile = sketch8
pocket2.Length = 1

sketch9 = body.newObject("Sketcher::SketchObject", "Sketch008")
sketch9.AttachmentSupport = (doc.getObject("YZ_Plane"), [""])
sketch9.MapMode = "FlatFace"
sketch9.AttachmentOffset = App.Placement(V(0, 0, -7.25), App.Rotation())
sketch9.addGeometry(Part.LineSegment(V(-3.1, -23.5, 0), V(-3.1, -24.2, 0)), False)
sketch9.addGeometry(Part.ArcOfCircle(Part.Circle(V(-2, -24.2, 0), V(0, 0, 1), 1.1), math.radians(180), math.radians(360)), False)
sketch9.addGeometry(Part.LineSegment(V(-0.9, -24.2, 0), V(-0.9, -23.5, 0)), False)
sketch9.addGeometry(Part.ArcOfCircle(Part.Circle(V(-2, -23.5, 0), V(0, 0, 1), 1.1), math.radians(0), math.radians(180)), False)
sketch9.addConstraint(Sketcher.Constraint("Tangent", 0, 2, 1, 1))
sketch9.addConstraint(Sketcher.Constraint("Tangent", 1, 2, 2, 1))
sketch9.addConstraint(Sketcher.Constraint("Tangent", 2, 2, 3, 1))
sketch9.addConstraint(Sketcher.Constraint("Tangent", 3, 2, 0, 1))
sketch9.addConstraint(Sketcher.Constraint("Vertical", 0))
sketch9.addConstraint(Sketcher.Constraint("Vertical", 2))
sketch9.addConstraint(Sketcher.Constraint("Radius", 1, 1.1))
sketch9.addConstraint(Sketcher.Constraint("DistanceY", 0, 2, 0, 1, 0.7))
sketch9.addConstraint(Sketcher.Constraint("DistanceX", 1, 3, -1, 1, 2.0))
sketch9.addConstraint(Sketcher.Constraint("DistanceY", 1, 3, -1, 1, 24.2))
pocket3 = body.newObject("PartDesign::Pocket", "Pocket002")
pocket3.Profile = sketch9
pocket3.Length = 1

sketch10 = body.newObject("Sketcher::SketchObject", "Sketch009")
sketch10.AttachmentSupport = (doc.getObject("YZ_Plane"), [""])
sketch10.MapMode = "FlatFace"
sketch10.AttachmentOffset = App.Placement(V(0, 0, -7.25), App.Rotation())
sketch10.addGeometry(Part.ArcOfCircle(Part.Circle(V(-2, -24.2, 0), V(0, 0, 1), 2), math.radians(180), math.radians(270)), False)
sketch10.addGeometry(Part.LineSegment(V(-4, -24.2, 0), V(-4, -26.2, 0)), False)
sketch10.addGeometry(Part.LineSegment(V(-4, -26.2, 0), V(-2, -26.2, 0)), False)
sketch10.addGeometry(Part.LineSegment(V(0, -26.2, 0), V(0, -24.2, 0)), False)
sketch10.addGeometry(Part.ArcOfCircle(Part.Circle(V(-2, -24.2, 0), V(0, 0, 1), 2), math.radians(-90), math.radians(0)), False)
sketch10.addGeometry(Part.LineSegment(V(-2, -26.2, 0), V(0, -26.2, 0)), False)
sketch10.addConstraint(Sketcher.Constraint("Tangent", 0, 1, 1, 1))
sketch10.addConstraint(Sketcher.Constraint("Coincident", 1, 2, 2, 1))
sketch10.addConstraint(Sketcher.Constraint("Tangent", 2, 2, 0, 2))
sketch10.addConstraint(Sketcher.Constraint("Tangent", 3, 2, 4, 2))
sketch10.addConstraint(Sketcher.Constraint("Tangent", 4, 1, 5, 1))
sketch10.addConstraint(Sketcher.Constraint("Coincident", 5, 2, 3, 1))
sketch10.addConstraint(Sketcher.Constraint("Vertical", 1))
sketch10.addConstraint(Sketcher.Constraint("Horizontal", 2))
sketch10.addConstraint(Sketcher.Constraint("Vertical", 3))
sketch10.addConstraint(Sketcher.Constraint("Horizontal", 5))
sketch10.addConstraint(Sketcher.Constraint("Coincident", 4, 3, 0, 3))
sketch10.addConstraint(Sketcher.Constraint("Equal", 0, 4))
sketch10.addConstraint(Sketcher.Constraint("PointOnObject", 3, 2, -2))
sketch10.addConstraint(Sketcher.Constraint("Radius", 0, 2.0))
sketch10.addConstraint(Sketcher.Constraint("DistanceY", 0, 3, -1, 1, 24.2))
pocket4 = body.newObject("PartDesign::Pocket", "Pocket003")
pocket4.Profile = sketch10
pocket4.Length = 1

sketch11 = body.newObject("Sketcher::SketchObject", "Sketch010")
sketch11.AttachmentSupport = (doc.getObject("XY_Plane"), [""])
sketch11.MapMode = "FlatFace"
add_polygon(sketch11, [(-12, -8), (12, -8), (12, 3), (7, 8), (-7, 8), (-12, 3)])
sketch11.addConstraint(Sketcher.Constraint("Horizontal", 0))
sketch11.addConstraint(Sketcher.Constraint("Vertical", 1))
sketch11.addConstraint(Sketcher.Constraint("Horizontal", 3))
sketch11.addConstraint(Sketcher.Constraint("Vertical", 5))
sketch11.addConstraint(Sketcher.Constraint("Symmetric", 1, 2, 4, 2, -2))
sketch11.addConstraint(Sketcher.Constraint("Perpendicular", 2, 4))
sketch11.addConstraint(Sketcher.Constraint("Equal", 2, 4))
sketch11.addConstraint(Sketcher.Constraint("DistanceX", -1, 1, 0, 2, 12.0))
sketch11.addConstraint(Sketcher.Constraint("DistanceY", 0, 2, -1, 1, 8.0))
sketch11.addConstraint(Sketcher.Constraint("DistanceY", -1, 1, 2, 2, 8.0))
sketch11.addConstraint(Sketcher.Constraint("DistanceX", 2, 2, 1, 2, 5.0))
pocket5 = body.newObject("PartDesign::Pocket", "Pocket004")
pocket5.Profile = sketch11
pocket5.Length = 16
doc.recompute()

fillet = body.newObject("PartDesign::Fillet", "Fillet")
fillet.Base = (pocket5, edges_at(pocket5, [
    (-15.35, 11.85, -1.6),
    (15.35, 11.85, -1.6),
    (15.35, -11.85, -1.6),
    (-15.35, -11.85, -1.6),
]))
fillet.Radius = 1.5
doc.recompute()

fillet2 = body.newObject("PartDesign::Fillet", "Fillet001")
fillet2.Base = (fillet, edges_at(fillet, [(-12, -8, -8), (12, -8, -8)]))
fillet2.Radius = 2
doc.recompute()

fillet3 = body.newObject("PartDesign::Fillet", "Fillet002")
fillet3.Base = (fillet2, edges_at(fillet2, [
    (-12, 3, -8),
    (-7, 8, -8),
    (7, 8, -8),
    (12, 3, -8),
]))
fillet3.Radius = 1.5
doc.recompute()

fillet4 = body.newObject("PartDesign::Fillet", "Fillet003")
fillet4.Base = (fillet3, edges_at(fillet3, [
    (-14.911, 11.411, 0),
    (0, 11.85, 0),
    (14.911, 11.411, 0),
    (15.35, 0, 0),
    (14.911, -11.411, 0),
    (0, -11.85, 0),
    (-14.911, -11.411, 0),
    (-15.35, 0, 0),
]))
fillet4.Radius = 1

doc.recompute()
